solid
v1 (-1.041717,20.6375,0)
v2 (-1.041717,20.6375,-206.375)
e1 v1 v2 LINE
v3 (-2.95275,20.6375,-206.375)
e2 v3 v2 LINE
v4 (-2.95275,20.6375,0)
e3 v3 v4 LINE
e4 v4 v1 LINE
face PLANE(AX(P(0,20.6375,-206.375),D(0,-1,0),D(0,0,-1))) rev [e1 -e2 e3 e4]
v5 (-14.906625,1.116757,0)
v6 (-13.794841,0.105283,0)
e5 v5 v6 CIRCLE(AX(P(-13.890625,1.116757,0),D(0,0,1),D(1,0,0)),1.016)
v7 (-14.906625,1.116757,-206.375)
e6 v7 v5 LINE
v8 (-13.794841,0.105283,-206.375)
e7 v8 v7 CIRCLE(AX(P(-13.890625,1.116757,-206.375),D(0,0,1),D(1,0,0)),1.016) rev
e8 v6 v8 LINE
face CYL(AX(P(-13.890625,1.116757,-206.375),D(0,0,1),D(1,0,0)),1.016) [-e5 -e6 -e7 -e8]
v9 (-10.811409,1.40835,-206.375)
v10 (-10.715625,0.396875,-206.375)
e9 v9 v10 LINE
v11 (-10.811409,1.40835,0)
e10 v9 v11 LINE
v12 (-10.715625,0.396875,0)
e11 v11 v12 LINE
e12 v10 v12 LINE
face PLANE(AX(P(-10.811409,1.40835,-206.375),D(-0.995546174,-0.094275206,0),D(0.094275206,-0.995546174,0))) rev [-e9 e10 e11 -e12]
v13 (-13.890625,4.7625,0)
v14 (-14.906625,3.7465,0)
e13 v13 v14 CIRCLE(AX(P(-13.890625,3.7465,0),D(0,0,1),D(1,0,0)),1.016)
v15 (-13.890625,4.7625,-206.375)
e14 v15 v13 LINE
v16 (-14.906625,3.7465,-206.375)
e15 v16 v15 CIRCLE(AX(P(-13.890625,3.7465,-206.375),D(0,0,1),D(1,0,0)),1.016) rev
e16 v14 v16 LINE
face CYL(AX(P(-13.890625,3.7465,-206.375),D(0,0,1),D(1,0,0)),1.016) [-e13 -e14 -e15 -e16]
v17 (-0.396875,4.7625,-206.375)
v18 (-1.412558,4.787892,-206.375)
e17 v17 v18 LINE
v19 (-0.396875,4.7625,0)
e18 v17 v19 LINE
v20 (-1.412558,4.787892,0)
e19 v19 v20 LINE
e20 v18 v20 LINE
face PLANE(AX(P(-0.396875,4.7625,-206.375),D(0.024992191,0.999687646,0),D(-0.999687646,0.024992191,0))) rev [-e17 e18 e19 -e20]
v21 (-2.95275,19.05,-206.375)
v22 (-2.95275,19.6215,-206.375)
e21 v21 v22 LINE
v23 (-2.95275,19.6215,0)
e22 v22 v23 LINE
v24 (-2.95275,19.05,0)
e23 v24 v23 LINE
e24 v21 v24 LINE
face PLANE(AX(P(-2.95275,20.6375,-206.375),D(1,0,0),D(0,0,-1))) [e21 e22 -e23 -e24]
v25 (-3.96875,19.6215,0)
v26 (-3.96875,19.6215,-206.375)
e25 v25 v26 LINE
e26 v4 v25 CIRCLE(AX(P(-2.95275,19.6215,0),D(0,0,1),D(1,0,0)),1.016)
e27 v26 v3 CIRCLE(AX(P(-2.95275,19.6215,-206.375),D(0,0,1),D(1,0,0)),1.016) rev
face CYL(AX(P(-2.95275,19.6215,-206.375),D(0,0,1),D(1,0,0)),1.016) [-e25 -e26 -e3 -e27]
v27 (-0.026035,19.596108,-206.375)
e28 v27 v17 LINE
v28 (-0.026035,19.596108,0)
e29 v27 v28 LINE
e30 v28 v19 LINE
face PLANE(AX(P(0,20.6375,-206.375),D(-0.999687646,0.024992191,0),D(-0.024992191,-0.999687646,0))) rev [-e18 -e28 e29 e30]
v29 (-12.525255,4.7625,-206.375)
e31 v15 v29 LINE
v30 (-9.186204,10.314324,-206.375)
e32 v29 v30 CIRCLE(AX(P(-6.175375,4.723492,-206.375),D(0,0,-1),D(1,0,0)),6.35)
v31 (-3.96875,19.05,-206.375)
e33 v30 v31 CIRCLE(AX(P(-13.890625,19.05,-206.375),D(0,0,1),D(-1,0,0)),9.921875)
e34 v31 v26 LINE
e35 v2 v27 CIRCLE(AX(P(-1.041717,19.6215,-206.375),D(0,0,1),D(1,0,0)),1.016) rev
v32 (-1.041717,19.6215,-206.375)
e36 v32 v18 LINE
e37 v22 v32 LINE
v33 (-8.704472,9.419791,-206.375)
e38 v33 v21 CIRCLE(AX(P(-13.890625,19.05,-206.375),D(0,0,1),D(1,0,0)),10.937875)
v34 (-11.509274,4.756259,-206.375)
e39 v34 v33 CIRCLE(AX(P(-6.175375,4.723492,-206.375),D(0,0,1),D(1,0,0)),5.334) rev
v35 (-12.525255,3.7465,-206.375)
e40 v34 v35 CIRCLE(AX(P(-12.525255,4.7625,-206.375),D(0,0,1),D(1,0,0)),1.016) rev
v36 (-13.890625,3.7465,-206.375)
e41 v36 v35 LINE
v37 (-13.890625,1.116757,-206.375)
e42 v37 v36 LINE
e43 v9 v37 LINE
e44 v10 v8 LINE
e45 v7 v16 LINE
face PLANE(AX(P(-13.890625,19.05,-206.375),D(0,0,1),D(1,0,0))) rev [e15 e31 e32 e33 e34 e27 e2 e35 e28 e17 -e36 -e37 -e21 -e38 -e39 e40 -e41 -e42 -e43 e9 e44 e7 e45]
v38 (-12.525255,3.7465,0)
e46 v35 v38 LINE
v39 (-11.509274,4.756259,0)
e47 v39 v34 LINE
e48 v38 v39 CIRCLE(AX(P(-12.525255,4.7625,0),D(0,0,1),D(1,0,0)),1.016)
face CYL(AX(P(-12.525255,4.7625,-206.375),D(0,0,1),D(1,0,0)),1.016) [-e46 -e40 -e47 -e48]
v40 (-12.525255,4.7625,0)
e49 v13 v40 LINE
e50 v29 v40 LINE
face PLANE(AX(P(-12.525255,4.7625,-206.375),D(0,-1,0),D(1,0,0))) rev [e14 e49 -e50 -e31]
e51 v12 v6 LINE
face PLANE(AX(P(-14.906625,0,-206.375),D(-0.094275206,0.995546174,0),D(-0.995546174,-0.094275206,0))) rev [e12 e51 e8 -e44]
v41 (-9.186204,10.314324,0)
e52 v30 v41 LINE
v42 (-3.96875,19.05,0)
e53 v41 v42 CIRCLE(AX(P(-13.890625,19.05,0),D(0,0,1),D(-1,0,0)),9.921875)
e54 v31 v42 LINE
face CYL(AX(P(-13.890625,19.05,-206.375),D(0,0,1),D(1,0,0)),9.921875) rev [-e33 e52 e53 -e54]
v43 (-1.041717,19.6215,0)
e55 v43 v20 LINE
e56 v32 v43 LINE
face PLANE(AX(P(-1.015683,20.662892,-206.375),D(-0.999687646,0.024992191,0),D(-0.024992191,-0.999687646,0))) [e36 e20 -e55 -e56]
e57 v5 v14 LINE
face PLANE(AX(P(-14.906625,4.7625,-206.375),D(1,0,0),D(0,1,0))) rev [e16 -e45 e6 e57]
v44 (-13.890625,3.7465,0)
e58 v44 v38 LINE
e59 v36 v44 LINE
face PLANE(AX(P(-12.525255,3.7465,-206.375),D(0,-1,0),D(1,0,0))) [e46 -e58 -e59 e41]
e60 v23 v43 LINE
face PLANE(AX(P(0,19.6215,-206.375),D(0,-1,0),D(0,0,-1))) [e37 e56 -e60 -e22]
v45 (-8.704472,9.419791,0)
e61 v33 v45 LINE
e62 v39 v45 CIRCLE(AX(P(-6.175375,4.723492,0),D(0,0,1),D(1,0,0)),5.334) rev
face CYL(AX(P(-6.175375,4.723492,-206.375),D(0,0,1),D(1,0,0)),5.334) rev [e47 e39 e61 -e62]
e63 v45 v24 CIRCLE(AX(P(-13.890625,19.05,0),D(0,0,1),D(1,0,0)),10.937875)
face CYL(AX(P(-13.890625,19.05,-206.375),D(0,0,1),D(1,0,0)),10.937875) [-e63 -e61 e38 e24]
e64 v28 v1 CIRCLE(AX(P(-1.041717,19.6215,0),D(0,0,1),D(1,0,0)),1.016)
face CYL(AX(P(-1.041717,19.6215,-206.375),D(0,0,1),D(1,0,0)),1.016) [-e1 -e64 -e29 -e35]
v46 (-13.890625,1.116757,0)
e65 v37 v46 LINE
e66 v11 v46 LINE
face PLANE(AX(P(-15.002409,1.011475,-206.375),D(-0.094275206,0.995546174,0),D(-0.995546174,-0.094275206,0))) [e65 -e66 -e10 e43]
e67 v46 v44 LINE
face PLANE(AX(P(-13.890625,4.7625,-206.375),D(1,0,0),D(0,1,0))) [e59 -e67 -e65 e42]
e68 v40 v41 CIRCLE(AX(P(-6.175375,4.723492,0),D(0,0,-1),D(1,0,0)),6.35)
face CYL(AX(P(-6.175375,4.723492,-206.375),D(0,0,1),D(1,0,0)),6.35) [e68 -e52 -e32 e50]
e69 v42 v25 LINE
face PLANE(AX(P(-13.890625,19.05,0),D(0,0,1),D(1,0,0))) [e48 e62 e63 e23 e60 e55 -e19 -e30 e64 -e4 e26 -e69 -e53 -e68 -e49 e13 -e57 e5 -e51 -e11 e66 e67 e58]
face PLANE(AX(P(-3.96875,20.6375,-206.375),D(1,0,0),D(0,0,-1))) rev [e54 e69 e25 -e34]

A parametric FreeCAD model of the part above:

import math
import FreeCAD as App
import Part
import Sketcher
Q = App.Units.Quantity


def edges_at(feature, points):
    """Names of the edges that pass closest to the given points."""
    edges = feature.Shape.Edges
    near = lambda p: min(range(len(edges)), key=lambda i: edges[i].distToShape(Part.Vertex(*p))[0])
    return sorted({f"Edge{near(p) + 1}" for p in points})

doc = App.newDocument("Part")
params = doc.addObject("Spreadsheet::Sheet", "Params")
for row, (alias, value) in enumerate([
    ("sketch1_radius", "0.21 in"),
    ("sketch1_radius2", "0.25 in"),
    ("sketch1_radius3", "0.390625 in"),
    ("sketch1_length", "0.04 in"),
    ("sketch1_width", "0.15625 in"),
    ("pad1_length", "8.125 in"),
    ("fillet_radius", "0.04 in"),
], start=1):
    params.set(f"A{row}", alias)
    params.set(f"B{row}", "=" + value)
    params.setAlias(f"B{row}", alias)

body = doc.addObject("PartDesign::Body", "Body")

# Sketch on XY plane
sketch1 = body.newObject("Sketcher::SketchObject", "Sketch")
sketch1.AttachmentSupport = (doc.getObject("XY_Plane"), [""])
sketch1.MapMode = "FlatFace"
sketch1.addGeometry([
    Part.LineSegment(App.Vector(-14.9, 0, 0), App.Vector(-10.7, 0.4, 0)),  # 0
    Part.LineSegment(App.Vector(-10.7, 0.4, 0), App.Vector(-10.8, 1.4, 0)),  # 1
    Part.LineSegment(App.Vector(-10.8, 1.4, 0), App.Vector(-13.9, 1.1, 0)),  # 2
    Part.LineSegment(App.Vector(-13.9, 1.1, 0), App.Vector(-13.9, 3.7, 0)),  # 3
    Part.LineSegment(App.Vector(-13.9, 3.7, 0), App.Vector(-11.4, 3.7, 0)),  # 4
    Part.ArcOfCircle(Part.Circle(App.Vector(-6.2, 4.7, 0), App.Vector(0, 0, 1), 5.3), math.radians(118), math.radians(191)),  # 5
    Part.ArcOfCircle(Part.Circle(App.Vector(-13.9, 19.1, 0), App.Vector(0, 0, 1), 10.9), math.radians(-62), math.radians(0)),  # 6
    Part.LineSegment(App.Vector(-3, 19.1, 0), App.Vector(-3, 19.6, 0)),  # 7
    Part.LineSegment(App.Vector(-3, 19.6, 0), App.Vector(-1, 19.6, 0)),  # 8
    Part.LineSegment(App.Vector(-1, 19.6, 0), App.Vector(-1.4, 4.8, 0)),  # 9
    Part.LineSegment(App.Vector(-1.4, 4.8, 0), App.Vector(-0.4, 4.8, 0)),  # 10
    Part.LineSegment(App.Vector(-0.4, 4.8, 0), App.Vector(0, 20.6, 0)),  # 11
    Part.LineSegment(App.Vector(0, 20.6, 0), App.Vector(-4, 20.6, 0)),  # 12
    Part.LineSegment(App.Vector(-4, 20.6, 0), App.Vector(-4, 19.1, 0)),  # 13
    Part.ArcOfCircle(Part.Circle(App.Vector(-13.9, 19, 0), App.Vector(0, 0, 1), 9.9), math.radians(-62), math.radians(0)),  # 14
    Part.ArcOfCircle(Part.Circle(App.Vector(-6.2, 4.7, 0), App.Vector(0, 0, 1), 6.4), math.radians(118), math.radians(180)),  # 15
    Part.LineSegment(App.Vector(-12.5, 4.8, 0), App.Vector(-14.9, 4.8, 0)),  # 16
    Part.LineSegment(App.Vector(-14.9, 4.8, 0), App.Vector(-14.9, 0, 0)),  # 17
], False)
sketch1.addConstraint([
    Sketcher.Constraint("Coincident", 0, 2, 1, 1),
    Sketcher.Constraint("Coincident", 1, 2, 2, 1),
    Sketcher.Constraint("Coincident", 2, 2, 3, 1),
    Sketcher.Constraint("Coincident", 3, 2, 4, 1),
    Sketcher.Constraint("Coincident", 4, 2, 5, 2),
    Sketcher.Constraint("Tangent", 5, 1, 6, 1),
    Sketcher.Constraint("Tangent", 6, 2, 7, 1),
    Sketcher.Constraint("Coincident", 7, 2, 8, 1),
    Sketcher.Constraint("Coincident", 8, 2, 9, 1),
    Sketcher.Constraint("Coincident", 9, 2, 10, 1),
    Sketcher.Constraint("Coincident", 10, 2, 11, 1),
    Sketcher.Constraint("Coincident", 11, 2, 12, 1),
    Sketcher.Constraint("Coincident", 12, 2, 13, 1),
    Sketcher.Constraint("Tangent", 13, 2, 14, 2),
    Sketcher.Constraint("Tangent", 14, 1, 15, 1),
    Sketcher.Constraint("Coincident", 15, 2, 16, 1),
    Sketcher.Constraint("Coincident", 16, 2, 17, 1),
    Sketcher.Constraint("Coincident", 17, 2, 0, 1),
    Sketcher.Constraint("Vertical", 3),
    Sketcher.Constraint("Horizontal", 4),
    Sketcher.Constraint("Vertical", 7),
    Sketcher.Constraint("Horizontal", 8),
    Sketcher.Constraint("Horizontal", 12),
    Sketcher.Constraint("Vertical", 13),
    Sketcher.Constraint("Horizontal", 16),
    Sketcher.Constraint("Vertical", 17),
    Sketcher.Constraint("Coincident", 14, 3, 6, 3),
    Sketcher.Constraint("Coincident", 15, 3, 5, 3),
    Sketcher.Constraint("PointOnObject", 11, 2, -2),
    Sketcher.Constraint("PointOnObject", 17, 2, -1),
    Sketcher.Constraint("Perpendicular", 0, 1),
    Sketcher.Constraint("Perpendicular", 1, 2),
    Sketcher.Constraint("Perpendicular", 9, 10),
    Sketcher.Constraint("Perpendicular", 10, 11),
    Sketcher.Constraint("Horizontal", 10, 2, 15, 2),
    Sketcher.Constraint("Vertical", 14, 3, 2, 2),
    Sketcher.Constraint("Equal", 1, 10),
    Sketcher.Constraint("Radius", 5, Q("0.21 in")),
    Sketcher.Constraint("Radius", 15, Q("0.25 in")),
    Sketcher.Constraint("Radius", 14, Q("0.390625 in")),
    Sketcher.Constraint("Distance", 1, Q("0.04 in")),
    Sketcher.Constraint("DistanceX", 12, 2, 12, 1, Q("0.15625 in")),
    Sketcher.Constraint("DistanceY", 13, 2, 13, 1, Q("0.0625 in")),
    Sketcher.Constraint("DistanceY", 17, 2, 17, 1, Q("0.1875 in")),
    Sketcher.Constraint("DistanceY", -1, 1, 6, 3, Q("0.75 in")),
    Sketcher.Constraint("DistanceY", 8, 2, 11, 2, Q("0.04 in")),
    Sketcher.Constraint("DistanceY", 4, 2, 15, 2, Q("0.04 in")),
    Sketcher.Constraint("DistanceX", 16, 2, 3, 2, Q("0.04 in")),
    Sketcher.Constraint("DistanceX", 0, 2, -1, 1, Q("0.421875 in")),
    Sketcher.Constraint("DistanceY", -1, 1, 0, 2, Q("0.015625 in")),
    Sketcher.Constraint("DistanceX", 10, 2, -1, 1, Q("0.015625 in")),
    Sketcher.Constraint("DistanceX", 15, 3, 10, 2, Q("0.2275 in")),
])
sketch1.setExpression("Constraints[37]", "Params.sketch1_radius")
sketch1.setExpression("Constraints[38]", "Params.sketch1_radius2")
sketch1.setExpression("Constraints[39]", "Params.sketch1_radius3")
sketch1.setExpression("Constraints[40]", "Params.sketch1_length")
sketch1.setExpression("Constraints[41]", "Params.sketch1_width")
pad1 = body.newObject("PartDesign::Pad", "Pad")
pad1.Profile = sketch1
pad1.setExpression("Length", "Params.pad1_length")
pad1.Reversed = True
doc.recompute()

fillet = body.newObject("PartDesign::Fillet", "Fillet")
fillet.Base = (pad1, edges_at(pad1, [
    (-11.419, 3.747, -103.188),
    (-14.907, 0, -103.188),
    (-14.907, 4.763, -103.188),
    (-3.969, 20.637, -103.188),
    (0, 20.637, -103.188),
]))
fillet.setExpression("Radius", "Params.fillet_radius")

doc.recompute()
